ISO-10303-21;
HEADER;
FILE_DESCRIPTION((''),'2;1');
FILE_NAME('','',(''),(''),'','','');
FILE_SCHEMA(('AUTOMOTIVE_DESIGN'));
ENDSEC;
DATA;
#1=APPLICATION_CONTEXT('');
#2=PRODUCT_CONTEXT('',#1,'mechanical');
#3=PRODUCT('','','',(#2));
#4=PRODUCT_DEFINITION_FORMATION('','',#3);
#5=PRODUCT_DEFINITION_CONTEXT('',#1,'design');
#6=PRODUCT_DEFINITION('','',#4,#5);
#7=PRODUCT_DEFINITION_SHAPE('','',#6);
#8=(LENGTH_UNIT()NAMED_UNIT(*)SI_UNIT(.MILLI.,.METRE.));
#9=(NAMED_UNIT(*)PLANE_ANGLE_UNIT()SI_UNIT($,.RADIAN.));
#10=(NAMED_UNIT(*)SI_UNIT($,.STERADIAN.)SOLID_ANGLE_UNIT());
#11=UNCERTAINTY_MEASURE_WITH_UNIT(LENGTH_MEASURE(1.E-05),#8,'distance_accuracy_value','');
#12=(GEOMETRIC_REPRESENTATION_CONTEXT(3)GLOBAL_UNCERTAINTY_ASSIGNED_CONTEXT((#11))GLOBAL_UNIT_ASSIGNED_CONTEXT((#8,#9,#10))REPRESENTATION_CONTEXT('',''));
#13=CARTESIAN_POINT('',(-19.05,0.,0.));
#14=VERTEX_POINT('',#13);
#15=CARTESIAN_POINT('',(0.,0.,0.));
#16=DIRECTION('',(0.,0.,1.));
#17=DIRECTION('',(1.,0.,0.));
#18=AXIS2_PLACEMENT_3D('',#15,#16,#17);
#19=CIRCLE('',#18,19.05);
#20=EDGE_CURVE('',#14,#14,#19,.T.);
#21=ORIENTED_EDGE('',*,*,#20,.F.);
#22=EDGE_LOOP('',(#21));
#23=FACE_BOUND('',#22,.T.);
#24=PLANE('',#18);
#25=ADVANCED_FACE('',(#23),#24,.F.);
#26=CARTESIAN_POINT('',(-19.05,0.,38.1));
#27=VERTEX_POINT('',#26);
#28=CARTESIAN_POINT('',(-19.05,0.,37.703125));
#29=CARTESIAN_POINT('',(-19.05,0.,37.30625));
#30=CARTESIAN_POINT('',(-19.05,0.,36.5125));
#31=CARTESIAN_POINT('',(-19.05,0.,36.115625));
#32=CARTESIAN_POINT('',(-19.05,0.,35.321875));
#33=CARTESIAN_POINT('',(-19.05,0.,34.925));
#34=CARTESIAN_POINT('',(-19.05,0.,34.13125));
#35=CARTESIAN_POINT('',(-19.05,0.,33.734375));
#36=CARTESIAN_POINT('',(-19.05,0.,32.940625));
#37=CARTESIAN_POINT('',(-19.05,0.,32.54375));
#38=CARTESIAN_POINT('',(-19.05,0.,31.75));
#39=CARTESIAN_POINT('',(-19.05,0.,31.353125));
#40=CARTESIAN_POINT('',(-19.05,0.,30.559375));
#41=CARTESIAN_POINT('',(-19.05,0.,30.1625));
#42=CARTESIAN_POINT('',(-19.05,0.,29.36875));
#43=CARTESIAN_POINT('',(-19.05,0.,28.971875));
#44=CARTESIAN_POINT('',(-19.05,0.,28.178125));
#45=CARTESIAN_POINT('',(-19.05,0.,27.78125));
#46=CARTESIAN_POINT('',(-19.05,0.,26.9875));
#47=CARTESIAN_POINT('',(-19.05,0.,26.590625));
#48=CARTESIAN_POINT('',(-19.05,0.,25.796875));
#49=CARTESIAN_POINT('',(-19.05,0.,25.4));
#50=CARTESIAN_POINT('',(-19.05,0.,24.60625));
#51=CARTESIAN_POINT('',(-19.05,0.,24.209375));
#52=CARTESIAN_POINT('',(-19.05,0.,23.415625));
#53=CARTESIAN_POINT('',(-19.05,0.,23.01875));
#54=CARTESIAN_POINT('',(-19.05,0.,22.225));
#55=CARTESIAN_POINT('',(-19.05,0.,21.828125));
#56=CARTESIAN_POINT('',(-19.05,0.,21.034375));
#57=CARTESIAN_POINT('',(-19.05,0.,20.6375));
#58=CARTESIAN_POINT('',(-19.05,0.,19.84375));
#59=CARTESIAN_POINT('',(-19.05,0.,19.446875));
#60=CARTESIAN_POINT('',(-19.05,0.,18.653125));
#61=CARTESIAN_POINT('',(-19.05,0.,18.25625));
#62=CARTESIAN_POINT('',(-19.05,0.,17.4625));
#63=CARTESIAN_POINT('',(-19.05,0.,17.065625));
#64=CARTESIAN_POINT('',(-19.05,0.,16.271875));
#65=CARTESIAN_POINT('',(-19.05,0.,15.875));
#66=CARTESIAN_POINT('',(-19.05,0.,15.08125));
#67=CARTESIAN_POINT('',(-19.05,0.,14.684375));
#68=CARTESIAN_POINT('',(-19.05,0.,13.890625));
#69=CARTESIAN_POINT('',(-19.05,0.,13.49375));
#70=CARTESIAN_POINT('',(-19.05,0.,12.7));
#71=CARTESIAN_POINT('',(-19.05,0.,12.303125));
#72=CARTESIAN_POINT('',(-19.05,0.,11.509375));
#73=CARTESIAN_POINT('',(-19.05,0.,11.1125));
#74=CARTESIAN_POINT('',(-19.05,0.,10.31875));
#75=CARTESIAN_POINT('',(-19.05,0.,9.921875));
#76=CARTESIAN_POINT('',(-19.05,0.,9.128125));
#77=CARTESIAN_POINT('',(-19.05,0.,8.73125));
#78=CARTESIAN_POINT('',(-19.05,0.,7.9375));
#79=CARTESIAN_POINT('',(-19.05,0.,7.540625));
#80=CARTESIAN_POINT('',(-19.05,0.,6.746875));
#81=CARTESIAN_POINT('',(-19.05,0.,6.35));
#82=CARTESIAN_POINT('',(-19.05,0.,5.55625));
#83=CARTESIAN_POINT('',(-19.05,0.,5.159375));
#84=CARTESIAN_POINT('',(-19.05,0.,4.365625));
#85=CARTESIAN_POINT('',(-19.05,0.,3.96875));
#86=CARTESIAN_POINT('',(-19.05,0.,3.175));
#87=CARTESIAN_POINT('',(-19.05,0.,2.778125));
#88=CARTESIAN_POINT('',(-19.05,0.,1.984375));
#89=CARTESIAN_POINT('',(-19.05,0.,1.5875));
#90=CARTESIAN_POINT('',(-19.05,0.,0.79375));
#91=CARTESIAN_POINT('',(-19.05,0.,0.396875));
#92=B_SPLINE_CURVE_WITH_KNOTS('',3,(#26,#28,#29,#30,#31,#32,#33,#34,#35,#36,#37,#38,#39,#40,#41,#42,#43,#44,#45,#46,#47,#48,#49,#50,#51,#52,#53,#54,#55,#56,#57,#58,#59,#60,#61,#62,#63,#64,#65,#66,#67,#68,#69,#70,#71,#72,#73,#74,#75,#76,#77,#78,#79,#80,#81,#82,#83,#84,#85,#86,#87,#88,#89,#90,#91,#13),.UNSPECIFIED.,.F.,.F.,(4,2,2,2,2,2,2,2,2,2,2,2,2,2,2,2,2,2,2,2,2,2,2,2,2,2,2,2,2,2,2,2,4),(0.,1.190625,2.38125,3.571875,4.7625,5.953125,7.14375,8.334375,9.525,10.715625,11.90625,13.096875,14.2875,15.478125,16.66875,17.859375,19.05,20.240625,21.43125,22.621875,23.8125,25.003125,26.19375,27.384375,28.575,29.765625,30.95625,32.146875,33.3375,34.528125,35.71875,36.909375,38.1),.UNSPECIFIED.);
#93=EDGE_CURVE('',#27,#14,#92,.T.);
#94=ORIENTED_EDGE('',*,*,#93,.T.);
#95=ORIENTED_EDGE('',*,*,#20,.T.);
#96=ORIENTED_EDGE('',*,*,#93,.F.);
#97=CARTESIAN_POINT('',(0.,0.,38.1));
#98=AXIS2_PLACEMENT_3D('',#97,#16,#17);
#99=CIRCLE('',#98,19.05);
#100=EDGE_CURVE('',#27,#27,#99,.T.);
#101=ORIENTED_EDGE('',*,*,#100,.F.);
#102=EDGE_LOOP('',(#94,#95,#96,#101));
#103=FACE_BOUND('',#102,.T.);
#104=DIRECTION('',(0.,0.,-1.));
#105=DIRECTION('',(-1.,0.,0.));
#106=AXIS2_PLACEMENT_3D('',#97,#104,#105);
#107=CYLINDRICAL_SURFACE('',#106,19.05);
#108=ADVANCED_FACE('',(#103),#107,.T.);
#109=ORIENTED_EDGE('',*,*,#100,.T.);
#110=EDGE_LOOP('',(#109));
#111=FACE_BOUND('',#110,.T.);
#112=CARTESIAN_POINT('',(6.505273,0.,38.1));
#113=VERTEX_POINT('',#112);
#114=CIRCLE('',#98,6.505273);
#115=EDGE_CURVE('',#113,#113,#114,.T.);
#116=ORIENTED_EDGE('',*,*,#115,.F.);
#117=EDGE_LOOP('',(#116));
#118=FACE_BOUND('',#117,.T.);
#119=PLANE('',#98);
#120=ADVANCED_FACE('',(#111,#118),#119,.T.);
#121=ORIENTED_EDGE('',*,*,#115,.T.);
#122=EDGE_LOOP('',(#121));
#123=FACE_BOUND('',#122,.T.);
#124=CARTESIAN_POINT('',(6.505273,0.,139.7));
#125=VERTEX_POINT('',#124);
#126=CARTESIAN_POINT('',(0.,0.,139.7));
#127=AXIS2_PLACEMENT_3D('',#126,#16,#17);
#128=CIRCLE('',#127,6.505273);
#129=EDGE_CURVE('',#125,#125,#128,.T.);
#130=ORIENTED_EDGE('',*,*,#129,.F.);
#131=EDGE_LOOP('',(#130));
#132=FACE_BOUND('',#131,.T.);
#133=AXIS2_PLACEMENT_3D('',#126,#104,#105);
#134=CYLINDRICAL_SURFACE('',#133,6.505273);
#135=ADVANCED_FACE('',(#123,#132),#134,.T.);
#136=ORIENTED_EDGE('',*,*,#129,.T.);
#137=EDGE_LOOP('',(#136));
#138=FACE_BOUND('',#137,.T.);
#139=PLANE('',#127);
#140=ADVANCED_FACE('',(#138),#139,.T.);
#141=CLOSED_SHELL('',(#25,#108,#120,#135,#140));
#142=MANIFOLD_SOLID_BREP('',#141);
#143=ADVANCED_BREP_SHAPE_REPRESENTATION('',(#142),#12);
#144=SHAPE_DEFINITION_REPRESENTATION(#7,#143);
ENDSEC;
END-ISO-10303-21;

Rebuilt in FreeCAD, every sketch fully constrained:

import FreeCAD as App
import Part
import Sketcher

V = App.Vector
Q = App.Units.Quantity

doc = App.newDocument("Part")
body = doc.addObject("PartDesign::Body", "Body")

sketch1 = body.newObject("Sketcher::SketchObject", "Sketch")
sketch1.AttachmentSupport = (doc.getObject("XY_Plane"), [""])
sketch1.MapMode = "FlatFace"
sketch1.addGeometry(Part.Circle(V(0, 0, 0), V(0, 0, 1), 19), False)
sketch1.addConstraint([
    Sketcher.Constraint("Coincident", 0, 3, -1, 1),
    Sketcher.Constraint("Diameter", 0, Q("1.5 in")),
])
pad1 = body.newObject("PartDesign::Pad", "Pad")
pad1.Profile = sketch1
pad1.Length = Q("1.5 in")

sketch2 = body.newObject("Sketcher::SketchObject", "Sketch001")
sketch2.AttachmentSupport = (doc.getObject("XY_Plane"), [""])
sketch2.MapMode = "FlatFace"
sketch2.AttachmentOffset = App.Placement(V(0, 0, 1.5 * 25.4), App.Rotation())
sketch2.addGeometry(Part.Circle(V(0, 0, 0), V(0, 0, 1), 7), False)
sketch2.addConstraint([
    Sketcher.Constraint("Coincident", 0, 3, -1, 1),
    Sketcher.Constraint("Diameter", 0, Q("13.010545 mm")),
])
pad2 = body.newObject("PartDesign::Pad", "Pad001")
pad2.Profile = sketch2
pad2.Length = Q("4 in")

doc.recompute()
